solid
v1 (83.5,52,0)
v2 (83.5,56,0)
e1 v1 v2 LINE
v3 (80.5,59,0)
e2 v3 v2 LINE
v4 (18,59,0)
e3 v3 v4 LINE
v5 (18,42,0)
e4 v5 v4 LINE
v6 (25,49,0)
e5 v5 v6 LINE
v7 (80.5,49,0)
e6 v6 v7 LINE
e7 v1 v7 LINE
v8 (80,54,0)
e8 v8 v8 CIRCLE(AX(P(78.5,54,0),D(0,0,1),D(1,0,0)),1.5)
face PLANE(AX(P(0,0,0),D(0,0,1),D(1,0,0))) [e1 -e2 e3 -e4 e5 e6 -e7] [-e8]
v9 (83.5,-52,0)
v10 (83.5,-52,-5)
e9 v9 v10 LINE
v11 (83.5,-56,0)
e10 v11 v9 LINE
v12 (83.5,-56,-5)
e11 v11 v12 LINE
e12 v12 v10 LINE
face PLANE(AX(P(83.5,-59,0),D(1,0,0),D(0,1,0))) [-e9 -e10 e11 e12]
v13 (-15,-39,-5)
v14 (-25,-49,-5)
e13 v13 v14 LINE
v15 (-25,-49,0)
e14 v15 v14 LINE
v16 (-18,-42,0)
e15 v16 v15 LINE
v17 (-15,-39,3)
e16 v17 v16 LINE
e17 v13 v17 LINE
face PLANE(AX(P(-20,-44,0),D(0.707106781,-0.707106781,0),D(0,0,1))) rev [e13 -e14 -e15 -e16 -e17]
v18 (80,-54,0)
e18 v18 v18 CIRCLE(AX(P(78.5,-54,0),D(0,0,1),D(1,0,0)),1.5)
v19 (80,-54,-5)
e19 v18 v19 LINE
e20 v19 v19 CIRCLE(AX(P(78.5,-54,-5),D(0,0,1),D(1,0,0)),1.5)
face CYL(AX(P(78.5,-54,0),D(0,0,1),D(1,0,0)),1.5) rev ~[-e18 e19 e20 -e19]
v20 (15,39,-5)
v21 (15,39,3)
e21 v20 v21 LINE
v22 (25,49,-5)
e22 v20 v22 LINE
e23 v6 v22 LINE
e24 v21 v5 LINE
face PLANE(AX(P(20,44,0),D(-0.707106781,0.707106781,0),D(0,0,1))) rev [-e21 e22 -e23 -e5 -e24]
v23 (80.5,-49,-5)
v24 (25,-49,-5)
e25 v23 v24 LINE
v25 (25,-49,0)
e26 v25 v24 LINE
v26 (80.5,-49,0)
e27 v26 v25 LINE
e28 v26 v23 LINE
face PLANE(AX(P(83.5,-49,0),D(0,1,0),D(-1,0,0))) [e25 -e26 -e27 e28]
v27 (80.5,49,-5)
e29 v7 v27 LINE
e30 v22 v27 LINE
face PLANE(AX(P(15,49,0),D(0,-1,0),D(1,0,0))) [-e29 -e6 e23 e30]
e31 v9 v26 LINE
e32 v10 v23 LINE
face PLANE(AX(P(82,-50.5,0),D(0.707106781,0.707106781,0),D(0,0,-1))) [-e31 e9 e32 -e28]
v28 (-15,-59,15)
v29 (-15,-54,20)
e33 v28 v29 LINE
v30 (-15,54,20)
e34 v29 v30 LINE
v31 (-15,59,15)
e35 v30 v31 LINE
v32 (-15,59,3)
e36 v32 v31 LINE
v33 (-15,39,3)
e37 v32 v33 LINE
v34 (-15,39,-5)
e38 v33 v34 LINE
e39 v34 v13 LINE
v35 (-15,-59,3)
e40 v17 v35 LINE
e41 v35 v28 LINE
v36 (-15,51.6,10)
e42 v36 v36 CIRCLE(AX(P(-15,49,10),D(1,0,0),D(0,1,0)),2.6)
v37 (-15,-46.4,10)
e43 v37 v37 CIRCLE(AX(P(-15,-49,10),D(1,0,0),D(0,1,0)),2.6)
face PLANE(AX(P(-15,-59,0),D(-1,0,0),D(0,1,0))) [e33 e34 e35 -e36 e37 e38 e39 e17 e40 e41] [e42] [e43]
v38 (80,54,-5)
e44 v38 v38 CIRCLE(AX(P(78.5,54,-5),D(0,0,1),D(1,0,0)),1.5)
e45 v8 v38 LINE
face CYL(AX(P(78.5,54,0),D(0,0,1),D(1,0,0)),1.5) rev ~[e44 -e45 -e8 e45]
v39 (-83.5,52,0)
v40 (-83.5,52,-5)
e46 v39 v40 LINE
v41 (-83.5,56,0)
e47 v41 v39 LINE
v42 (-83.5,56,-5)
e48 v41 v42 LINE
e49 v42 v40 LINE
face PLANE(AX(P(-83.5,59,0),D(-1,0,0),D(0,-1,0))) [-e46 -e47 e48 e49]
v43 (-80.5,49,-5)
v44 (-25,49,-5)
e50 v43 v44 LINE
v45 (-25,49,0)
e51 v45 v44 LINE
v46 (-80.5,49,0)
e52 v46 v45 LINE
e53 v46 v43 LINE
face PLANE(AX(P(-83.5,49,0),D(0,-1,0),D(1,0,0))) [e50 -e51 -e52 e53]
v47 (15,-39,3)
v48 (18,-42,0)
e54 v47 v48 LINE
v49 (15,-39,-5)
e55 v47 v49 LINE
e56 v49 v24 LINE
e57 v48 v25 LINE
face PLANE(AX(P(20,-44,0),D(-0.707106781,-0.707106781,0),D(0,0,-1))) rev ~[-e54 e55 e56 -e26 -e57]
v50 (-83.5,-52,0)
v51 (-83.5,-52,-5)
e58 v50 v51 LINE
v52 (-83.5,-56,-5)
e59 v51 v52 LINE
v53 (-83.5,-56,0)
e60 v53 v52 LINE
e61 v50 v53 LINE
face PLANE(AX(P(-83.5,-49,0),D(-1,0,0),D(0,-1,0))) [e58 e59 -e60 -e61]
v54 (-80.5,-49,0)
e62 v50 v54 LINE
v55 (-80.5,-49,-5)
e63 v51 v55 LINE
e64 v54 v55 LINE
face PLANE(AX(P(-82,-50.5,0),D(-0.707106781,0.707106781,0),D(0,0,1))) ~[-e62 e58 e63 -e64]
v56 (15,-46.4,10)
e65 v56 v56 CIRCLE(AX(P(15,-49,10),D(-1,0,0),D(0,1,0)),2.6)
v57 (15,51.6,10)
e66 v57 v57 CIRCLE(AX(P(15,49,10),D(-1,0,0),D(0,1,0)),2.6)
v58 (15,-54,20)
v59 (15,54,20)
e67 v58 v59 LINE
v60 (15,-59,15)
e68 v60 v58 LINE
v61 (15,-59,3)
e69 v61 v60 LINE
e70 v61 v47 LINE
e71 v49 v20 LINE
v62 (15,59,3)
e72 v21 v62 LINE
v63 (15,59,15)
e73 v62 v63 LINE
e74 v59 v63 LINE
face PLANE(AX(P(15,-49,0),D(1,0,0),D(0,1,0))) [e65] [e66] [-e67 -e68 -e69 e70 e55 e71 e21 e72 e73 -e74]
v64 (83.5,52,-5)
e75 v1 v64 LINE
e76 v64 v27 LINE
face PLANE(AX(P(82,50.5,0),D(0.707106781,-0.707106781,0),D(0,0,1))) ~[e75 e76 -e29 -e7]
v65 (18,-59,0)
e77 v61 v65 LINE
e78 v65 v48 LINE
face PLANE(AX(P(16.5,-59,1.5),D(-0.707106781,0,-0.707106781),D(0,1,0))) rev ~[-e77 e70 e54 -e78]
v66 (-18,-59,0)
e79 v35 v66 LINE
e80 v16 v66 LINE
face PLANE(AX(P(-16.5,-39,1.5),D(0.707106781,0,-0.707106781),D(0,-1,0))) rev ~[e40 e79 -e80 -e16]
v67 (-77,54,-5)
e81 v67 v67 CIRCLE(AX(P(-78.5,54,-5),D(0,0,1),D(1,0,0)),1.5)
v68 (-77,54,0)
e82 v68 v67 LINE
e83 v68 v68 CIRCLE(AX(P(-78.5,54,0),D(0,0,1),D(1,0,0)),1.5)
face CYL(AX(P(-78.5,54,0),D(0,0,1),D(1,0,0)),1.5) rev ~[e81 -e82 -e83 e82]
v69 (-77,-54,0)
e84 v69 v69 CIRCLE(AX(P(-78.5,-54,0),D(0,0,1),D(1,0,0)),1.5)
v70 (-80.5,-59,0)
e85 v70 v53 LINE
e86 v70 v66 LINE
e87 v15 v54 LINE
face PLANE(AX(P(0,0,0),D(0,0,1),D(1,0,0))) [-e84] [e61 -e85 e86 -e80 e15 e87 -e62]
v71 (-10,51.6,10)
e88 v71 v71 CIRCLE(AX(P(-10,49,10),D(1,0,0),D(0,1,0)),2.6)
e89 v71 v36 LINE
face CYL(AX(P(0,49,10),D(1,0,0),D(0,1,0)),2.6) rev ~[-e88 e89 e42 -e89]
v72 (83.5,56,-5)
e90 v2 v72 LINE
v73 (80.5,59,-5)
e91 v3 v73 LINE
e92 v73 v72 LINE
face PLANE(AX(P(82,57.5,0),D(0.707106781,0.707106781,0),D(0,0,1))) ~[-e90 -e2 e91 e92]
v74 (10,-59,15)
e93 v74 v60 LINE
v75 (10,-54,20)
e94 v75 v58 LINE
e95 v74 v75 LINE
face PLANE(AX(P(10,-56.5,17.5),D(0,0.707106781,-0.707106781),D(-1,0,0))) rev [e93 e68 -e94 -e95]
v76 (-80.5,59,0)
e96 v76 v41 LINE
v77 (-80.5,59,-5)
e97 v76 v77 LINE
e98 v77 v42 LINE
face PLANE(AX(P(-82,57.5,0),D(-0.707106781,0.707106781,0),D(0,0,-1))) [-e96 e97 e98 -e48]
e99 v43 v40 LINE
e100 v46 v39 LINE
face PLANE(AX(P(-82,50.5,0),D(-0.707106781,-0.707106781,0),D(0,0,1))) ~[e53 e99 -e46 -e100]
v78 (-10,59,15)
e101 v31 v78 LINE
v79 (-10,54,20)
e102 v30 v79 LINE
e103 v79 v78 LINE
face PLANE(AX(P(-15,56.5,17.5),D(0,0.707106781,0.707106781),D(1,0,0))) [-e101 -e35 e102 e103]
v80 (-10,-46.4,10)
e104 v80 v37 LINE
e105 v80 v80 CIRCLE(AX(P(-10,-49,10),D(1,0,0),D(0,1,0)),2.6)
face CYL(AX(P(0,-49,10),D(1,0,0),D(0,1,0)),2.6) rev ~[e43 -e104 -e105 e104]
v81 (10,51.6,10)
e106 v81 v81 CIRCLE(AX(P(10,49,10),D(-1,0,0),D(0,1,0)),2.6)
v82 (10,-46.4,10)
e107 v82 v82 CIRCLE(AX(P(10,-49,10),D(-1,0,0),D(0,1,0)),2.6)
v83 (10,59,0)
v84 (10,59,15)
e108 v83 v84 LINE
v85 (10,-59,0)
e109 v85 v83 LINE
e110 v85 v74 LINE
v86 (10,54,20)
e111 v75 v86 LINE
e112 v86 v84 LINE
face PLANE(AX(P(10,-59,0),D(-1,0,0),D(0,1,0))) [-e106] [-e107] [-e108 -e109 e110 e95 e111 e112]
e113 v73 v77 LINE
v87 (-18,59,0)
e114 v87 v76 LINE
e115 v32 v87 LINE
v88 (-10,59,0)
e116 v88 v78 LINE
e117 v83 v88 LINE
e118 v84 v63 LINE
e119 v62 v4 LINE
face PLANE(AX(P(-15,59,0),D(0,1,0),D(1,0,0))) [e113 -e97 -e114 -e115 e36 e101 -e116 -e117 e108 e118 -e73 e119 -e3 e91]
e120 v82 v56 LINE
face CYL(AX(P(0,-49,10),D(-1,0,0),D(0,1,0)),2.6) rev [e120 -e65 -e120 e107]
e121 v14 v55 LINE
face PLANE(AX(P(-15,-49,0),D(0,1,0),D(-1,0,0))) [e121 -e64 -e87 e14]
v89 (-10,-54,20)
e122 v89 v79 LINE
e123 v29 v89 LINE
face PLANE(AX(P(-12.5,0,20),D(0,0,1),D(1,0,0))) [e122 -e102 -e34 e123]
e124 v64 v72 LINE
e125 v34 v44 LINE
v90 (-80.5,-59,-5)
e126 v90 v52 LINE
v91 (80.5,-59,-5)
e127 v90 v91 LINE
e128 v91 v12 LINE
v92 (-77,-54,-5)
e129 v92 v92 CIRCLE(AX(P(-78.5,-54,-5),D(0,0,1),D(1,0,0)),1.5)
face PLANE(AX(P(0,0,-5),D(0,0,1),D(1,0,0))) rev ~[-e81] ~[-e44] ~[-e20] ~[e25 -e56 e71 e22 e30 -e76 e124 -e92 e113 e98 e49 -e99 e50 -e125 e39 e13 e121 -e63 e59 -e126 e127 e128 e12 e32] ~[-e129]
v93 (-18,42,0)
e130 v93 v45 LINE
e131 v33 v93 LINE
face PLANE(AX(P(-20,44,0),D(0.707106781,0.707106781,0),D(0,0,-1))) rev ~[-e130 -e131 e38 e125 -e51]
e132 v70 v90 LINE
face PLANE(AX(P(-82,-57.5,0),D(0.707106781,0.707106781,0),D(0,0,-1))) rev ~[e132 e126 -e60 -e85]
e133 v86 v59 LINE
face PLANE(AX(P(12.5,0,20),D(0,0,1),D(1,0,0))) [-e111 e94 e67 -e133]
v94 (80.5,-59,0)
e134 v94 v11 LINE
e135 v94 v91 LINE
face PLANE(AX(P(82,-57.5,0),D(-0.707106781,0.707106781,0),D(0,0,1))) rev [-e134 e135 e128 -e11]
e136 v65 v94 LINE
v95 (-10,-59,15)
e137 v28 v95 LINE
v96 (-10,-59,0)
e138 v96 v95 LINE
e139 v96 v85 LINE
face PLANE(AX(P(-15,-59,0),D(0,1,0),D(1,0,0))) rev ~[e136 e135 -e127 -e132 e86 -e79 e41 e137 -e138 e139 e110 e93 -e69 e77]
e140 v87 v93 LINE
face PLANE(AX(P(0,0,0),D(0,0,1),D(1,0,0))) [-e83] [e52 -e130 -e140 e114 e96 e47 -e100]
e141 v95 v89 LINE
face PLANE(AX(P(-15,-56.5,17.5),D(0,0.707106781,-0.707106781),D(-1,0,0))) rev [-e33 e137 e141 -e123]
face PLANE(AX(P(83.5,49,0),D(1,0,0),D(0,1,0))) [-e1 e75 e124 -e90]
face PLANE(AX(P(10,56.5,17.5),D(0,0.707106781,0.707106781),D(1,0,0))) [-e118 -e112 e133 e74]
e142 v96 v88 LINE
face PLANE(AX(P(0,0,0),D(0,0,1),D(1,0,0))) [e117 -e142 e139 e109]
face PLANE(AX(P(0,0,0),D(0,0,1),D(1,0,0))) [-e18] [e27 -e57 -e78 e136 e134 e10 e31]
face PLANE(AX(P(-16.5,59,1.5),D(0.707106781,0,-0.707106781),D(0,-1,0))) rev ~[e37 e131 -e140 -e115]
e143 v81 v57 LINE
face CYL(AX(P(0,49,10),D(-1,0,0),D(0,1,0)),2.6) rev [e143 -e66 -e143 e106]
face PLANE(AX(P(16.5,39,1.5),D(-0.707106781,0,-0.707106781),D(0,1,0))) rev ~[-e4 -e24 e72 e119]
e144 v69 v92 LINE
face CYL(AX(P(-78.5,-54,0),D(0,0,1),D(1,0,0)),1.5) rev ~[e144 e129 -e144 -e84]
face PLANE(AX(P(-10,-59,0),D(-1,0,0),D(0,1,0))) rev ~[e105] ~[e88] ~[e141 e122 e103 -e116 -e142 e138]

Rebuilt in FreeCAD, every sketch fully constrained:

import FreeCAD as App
import Part
import Sketcher

V = App.Vector
Q = App.Units.Quantity


def edges_at(feature, points):
    """Names of the edges that pass closest to the given points."""
    edges = feature.Shape.Edges
    near = lambda p: min(range(len(edges)), key=lambda i: edges[i].distToShape(Part.Vertex(*p))[0])
    return sorted({f"Edge{near(p) + 1}" for p in points})

doc = App.newDocument("Part")
body = doc.addObject("PartDesign::Body", "Body")

# Sketch on XY plane
sketch1 = body.newObject("Sketcher::SketchObject", "Sketch")
sketch1.AttachmentSupport = (doc.getObject("XY_Plane"), [""])
sketch1.MapMode = "FlatFace"
sketch1.addGeometry([
    Part.LineSegment(V(-83.5, 59, 0), V(-83.5, 49, 0)),  # 0
    Part.LineSegment(V(-83.5, 49, 0), V(-15, 49, 0)),  # 1
    Part.LineSegment(V(-15, 49, 0), V(-15, -49, 0)),  # 2
    Part.LineSegment(V(-15, -49, 0), V(-83.5, -49, 0)),  # 3
    Part.LineSegment(V(-83.5, -49, 0), V(-83.5, -59, 0)),  # 4
    Part.LineSegment(V(-83.5, -59, 0), V(83.5, -59, 0)),  # 5
    Part.LineSegment(V(83.5, -59, 0), V(83.5, -49, 0)),  # 6
    Part.LineSegment(V(83.5, -49, 0), V(15, -49, 0)),  # 7
    Part.LineSegment(V(15, -49, 0), V(15, 49, 0)),  # 8
    Part.LineSegment(V(15, 49, 0), V(83.5, 49, 0)),  # 9
    Part.LineSegment(V(83.5, 49, 0), V(83.5, 59, 0)),  # 10
    Part.LineSegment(V(83.5, 59, 0), V(-83.5, 59, 0)),  # 11
    Part.Circle(V(-78.5, -54, 0), V(0, 0, 1), 1.5),  # 12
    Part.Circle(V(78.5, -54, 0), V(0, 0, 1), 1.5),  # 13
    Part.Circle(V(-78.5, 54, 0), V(0, 0, 1), 1.5),  # 14
    Part.Circle(V(78.5, 54, 0), V(0, 0, 1), 1.5),  # 15
], False)
sketch1.addConstraint([
    Sketcher.Constraint("Coincident", 0, 2, 1, 1),
    Sketcher.Constraint("Coincident", 1, 2, 2, 1),
    Sketcher.Constraint("Coincident", 2, 2, 3, 1),
    Sketcher.Constraint("Coincident", 3, 2, 4, 1),
    Sketcher.Constraint("Coincident", 4, 2, 5, 1),
    Sketcher.Constraint("Coincident", 5, 2, 6, 1),
    Sketcher.Constraint("Coincident", 6, 2, 7, 1),
    Sketcher.Constraint("Coincident", 7, 2, 8, 1),
    Sketcher.Constraint("Coincident", 8, 2, 9, 1),
    Sketcher.Constraint("Coincident", 9, 2, 10, 1),
    Sketcher.Constraint("Coincident", 10, 2, 11, 1),
    Sketcher.Constraint("Coincident", 11, 2, 0, 1),
    Sketcher.Constraint("Vertical", 0),
    Sketcher.Constraint("Horizontal", 1),
    Sketcher.Constraint("Vertical", 2),
    Sketcher.Constraint("Horizontal", 3),
    Sketcher.Constraint("Vertical", 4),
    Sketcher.Constraint("Horizontal", 5),
    Sketcher.Constraint("Vertical", 6),
    Sketcher.Constraint("Horizontal", 7),
    Sketcher.Constraint("Vertical", 8),
    Sketcher.Constraint("Horizontal", 9),
    Sketcher.Constraint("Vertical", 10),
    Sketcher.Constraint("Horizontal", 11),
    Sketcher.Constraint("Equal", 12, 13),
    Sketcher.Constraint("Equal", 13, 14),
    Sketcher.Constraint("Equal", 14, 15),
    Sketcher.Constraint("Symmetric", 13, 3, 14, 3, -1, 1),
    Sketcher.Constraint("Symmetric", 12, 3, 15, 3, -1, 1),
    Sketcher.Constraint("Symmetric", 0, 2, 6, 2, -1, 1),
    Sketcher.Constraint("Symmetric", 2, 2, 8, 2, -1, 1),
    Sketcher.Constraint("Symmetric", 4, 2, 10, 2, -1, 1),
    Sketcher.Constraint("Symmetric", 12, 3, 13, 3, -2),
    Sketcher.Constraint("Symmetric", 3, 2, 6, 2, -2),
    Sketcher.Constraint("Diameter", 12, Q("3 mm")),
    Sketcher.Constraint("DistanceX", 5, 1, 5, 2, Q("167 mm")),
    Sketcher.Constraint("DistanceY", 0, 2, 0, 1, Q("10 mm")),
    Sketcher.Constraint("DistanceY", 2, 2, 2, 1, Q("98 mm")),
    Sketcher.Constraint("DistanceX", 1, 1, 1, 2, Q("68.5 mm")),
    Sketcher.Constraint("DistanceY", 12, 3, -1, 1, Q("54 mm")),
    Sketcher.Constraint("DistanceX", 12, 3, 13, 3, Q("157 mm")),
])
pad1 = body.newObject("PartDesign::Pad", "Pad")
pad1.Profile = sketch1
pad1.Length = 5
pad1.Reversed = True

# Sketch on XY plane
sketch2 = body.newObject("Sketcher::SketchObject", "Sketch001")
sketch2.AttachmentSupport = (doc.getObject("XY_Plane"), [""])
sketch2.MapMode = "FlatFace"
sketch2.addGeometry([
    Part.LineSegment(V(-15, 59, 0), V(-15, -59, 0)),  # 0
    Part.LineSegment(V(-15, -59, 0), V(-10, -59, 0)),  # 1
    Part.LineSegment(V(-10, -59, 0), V(-10, 59, 0)),  # 2
    Part.LineSegment(V(-10, 59, 0), V(-15, 59, 0)),  # 3
    Part.LineSegment(V(10, 59, 0), V(10, -59, 0)),  # 4
    Part.LineSegment(V(10, -59, 0), V(15, -59, 0)),  # 5
    Part.LineSegment(V(15, -59, 0), V(15, 59, 0)),  # 6
    Part.LineSegment(V(15, 59, 0), V(10, 59, 0)),  # 7
], False)
sketch2.addConstraint([
    Sketcher.Constraint("Coincident", 0, 2, 1, 1),
    Sketcher.Constraint("Coincident", 1, 2, 2, 1),
    Sketcher.Constraint("Coincident", 2, 2, 3, 1),
    Sketcher.Constraint("Coincident", 3, 2, 0, 1),
    Sketcher.Constraint("Coincident", 4, 2, 5, 1),
    Sketcher.Constraint("Coincident", 5, 2, 6, 1),
    Sketcher.Constraint("Coincident", 6, 2, 7, 1),
    Sketcher.Constraint("Coincident", 7, 2, 4, 1),
    Sketcher.Constraint("Vertical", 0),
    Sketcher.Constraint("Horizontal", 1),
    Sketcher.Constraint("Vertical", 2),
    Sketcher.Constraint("Horizontal", 3),
    Sketcher.Constraint("Vertical", 4),
    Sketcher.Constraint("Horizontal", 5),
    Sketcher.Constraint("Vertical", 6),
    Sketcher.Constraint("Horizontal", 7),
    Sketcher.Constraint("Symmetric", 2, 2, 4, 2, -1, 1),
    Sketcher.Constraint("Symmetric", 0, 2, 6, 2, -1, 1),
    Sketcher.Constraint("Horizontal", 1, 2, 4, 2),
    Sketcher.Constraint("DistanceX", 1, 1, 1, 2, Q("5 mm")),
    Sketcher.Constraint("DistanceY", 0, 2, 0, 1, Q("118 mm")),
    Sketcher.Constraint("DistanceX", 0, 2, -1, 1, Q("15 mm")),
])
pad2 = body.newObject("PartDesign::Pad", "Pad001")
pad2.Profile = sketch2
pad2.Length = 20
doc.recompute()

chamfer = body.newObject("PartDesign::Chamfer", "Chamfer")
chamfer.Base = (pad2, edges_at(pad2, [
    (-83.5, 49, -2.5),
    (-83.5, 59, -2.5),
    (-83.5, -49, -2.5),
    (-83.5, -59, -2.5),
    (83.5, -59, -2.5),
    (83.5, 49, -2.5),
    (83.5, 59, -2.5),
    (83.5, -49, -2.5),
]))
chamfer.Size = 3
doc.recompute()

chamfer2 = body.newObject("PartDesign::Chamfer", "Chamfer001")
chamfer2.Base = (chamfer, edges_at(chamfer, [
    (-12.5, -59, 20),
    (12.5, -59, 20),
    (12.5, 59, 20),
    (-12.5, 59, 20),
]))
chamfer2.Size = 5
doc.recompute()

chamfer3 = body.newObject("PartDesign::Chamfer", "Chamfer002")
chamfer3.Base = (chamfer2, edges_at(chamfer2, [
    (-15, 49, -2.5),
    (-15, -49, -2.5),
    (15, -49, -2.5),
    (15, 49, -2.5),
]))
chamfer3.Size = 10
doc.recompute()

chamfer4 = body.newObject("PartDesign::Chamfer", "Chamfer003")
chamfer4.Base = (chamfer3, edges_at(chamfer3, [
    (-15, 49, 0),
    (-15, -49, 0),
    (15, -49, 0),
    (15, 49, 0),
]))
chamfer4.Size = 3

# Sketch on YZ plane
sketch3 = body.newObject("Sketcher::SketchObject", "Sketch002")
sketch3.AttachmentSupport = (doc.getObject("YZ_Plane"), [""])
sketch3.MapMode = "FlatFace"
sketch3.addGeometry([
    Part.Circle(V(-49, 10, 0), V(0, 0, 1), 2.6),
    Part.Circle(V(49, 10, 0), V(0, 0, 1), 2.6),
], False)
sketch3.addConstraint([
    Sketcher.Constraint("Equal", 0, 1),
    Sketcher.Constraint("Symmetric", 0, 3, 1, 3, -2),
    Sketcher.Constraint("Diameter", 0, Q("5.2 mm")),
    Sketcher.Constraint("DistanceX", 0, 3, -1, 1, Q("49 mm")),
    Sketcher.Constraint("DistanceY", -1, 1, 0, 3, Q("10 mm")),
])
pocket1 = body.newObject("PartDesign::Pocket", "Pocket")
pocket1.Profile = sketch3
pocket1.Type = "ThroughAll"
pocket1.Midplane = True

doc.recompute()
